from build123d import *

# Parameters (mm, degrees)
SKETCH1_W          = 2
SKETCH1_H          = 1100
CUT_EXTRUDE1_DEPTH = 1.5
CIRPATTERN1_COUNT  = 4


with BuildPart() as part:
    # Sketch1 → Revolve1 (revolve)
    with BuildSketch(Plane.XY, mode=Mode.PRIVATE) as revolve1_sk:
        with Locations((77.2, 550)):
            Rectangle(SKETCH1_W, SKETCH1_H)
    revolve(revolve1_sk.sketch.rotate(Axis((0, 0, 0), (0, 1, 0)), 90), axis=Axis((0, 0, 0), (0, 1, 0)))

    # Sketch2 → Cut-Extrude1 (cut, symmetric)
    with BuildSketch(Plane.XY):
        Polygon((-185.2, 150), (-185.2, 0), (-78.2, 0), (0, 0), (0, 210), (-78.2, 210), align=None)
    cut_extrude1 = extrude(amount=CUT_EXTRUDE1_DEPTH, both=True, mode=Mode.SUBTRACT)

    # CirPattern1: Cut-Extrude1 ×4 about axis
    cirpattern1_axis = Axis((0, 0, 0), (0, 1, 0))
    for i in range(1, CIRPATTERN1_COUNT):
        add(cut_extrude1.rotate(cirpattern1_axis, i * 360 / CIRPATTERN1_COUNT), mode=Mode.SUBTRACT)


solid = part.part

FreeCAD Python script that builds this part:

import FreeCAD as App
import Part
import Sketcher
from FreeCAD import Vector
Q = App.Units.Quantity

doc = App.newDocument("Part")
params = doc.addObject("Spreadsheet::Sheet", "Params")
for row, (alias, value) in enumerate([
    ("sketch1_width", "2 mm"),
    ("sketch1_height", "1100 mm"),
    ("revolution_angle", "360 deg"),
    ("sketch2_height", "150 mm"),
    ("sketch2_height2", "210 mm"),
    ("sketch2_width", "185.2 mm"),
    ("sketch2_width2", "78.2 mm"),
    ("pocket1_length", "3 mm"),
], start=1):
    params.set(f"A{row}", alias)
    params.set(f"B{row}", "=" + value)
    params.setAlias(f"B{row}", alias)

body = doc.addObject("PartDesign::Body", "Body")

sketch1 = doc.addObject("Sketcher::SketchObject", "Sketch")
body.addObject(sketch1)
sketch1.AttachmentSupport = (doc.XY_Plane, [""])
sketch1.MapMode = "FlatFace"
sketch1.addGeometry([
    Part.LineSegment(Vector(76.2, 1100, 0), Vector(76.2, 0, 0)),
    Part.LineSegment(Vector(76.2, 0, 0), Vector(78.2, 0, 0)),
    Part.LineSegment(Vector(78.2, 0, 0), Vector(78.2, 1100, 0)),
    Part.LineSegment(Vector(78.2, 1100, 0), Vector(76.2, 1100, 0)),
], False)
sketch1.addConstraint([
    Sketcher.Constraint("Coincident", 0, 2, 1, 1),
    Sketcher.Constraint("Coincident", 1, 2, 2, 1),
    Sketcher.Constraint("Coincident", 2, 2, 3, 1),
    Sketcher.Constraint("Coincident", 3, 2, 0, 1),
    Sketcher.Constraint("Vertical", 0),
    Sketcher.Constraint("Horizontal", 1),
    Sketcher.Constraint("Vertical", 2),
    Sketcher.Constraint("Horizontal", 3),
    Sketcher.Constraint("PointOnObject", 0, 2, -1),
    Sketcher.Constraint("DistanceX", 1, 1, 1, 2, Q("2 mm")),
    Sketcher.Constraint("DistanceY", 0, 2, 0, 1, Q("1100 mm")),
    Sketcher.Constraint("DistanceX", -1, 1, 0, 2, Q("76.2 mm")),
])
sketch1.setExpression("Constraints[9]", "Params.sketch1_width")
sketch1.setExpression("Constraints[10]", "Params.sketch1_height")
revolution = doc.addObject("PartDesign::Revolution", "Revolution")
body.addObject(revolution)
revolution.Profile = sketch1
revolution.ReferenceAxis = (sketch1, ["V_Axis"])
revolution.setExpression("Angle", "Params.revolution_angle")

sketch2 = doc.addObject("Sketcher::SketchObject", "Sketch001")
body.addObject(sketch2)
sketch2.AttachmentSupport = (doc.XY_Plane, [""])
sketch2.MapMode = "FlatFace"
sketch2.addGeometry([
    Part.LineSegment(Vector(-185.2, 150, 0), Vector(-185.2, 0, 0)),
    Part.LineSegment(Vector(-185.2, 0, 0), Vector(0, 0, 0)),
    Part.LineSegment(Vector(0, 0, 0), Vector(0, 210, 0)),
    Part.LineSegment(Vector(0, 210, 0), Vector(-78.2, 210, 0)),
    Part.LineSegment(Vector(-78.2, 210, 0), Vector(-185.2, 150, 0)),
], False)
sketch2.addConstraint([
    Sketcher.Constraint("Coincident", 0, 2, 1, 1),
    Sketcher.Constraint("Coincident", 1, 2, 2, 1),
    Sketcher.Constraint("Coincident", 2, 2, 3, 1),
    Sketcher.Constraint("Coincident", 3, 2, 4, 1),
    Sketcher.Constraint("Coincident", 4, 2, 0, 1),
    Sketcher.Constraint("Vertical", 0),
    Sketcher.Constraint("Horizontal", 1),
    Sketcher.Constraint("Vertical", 2),
    Sketcher.Constraint("Horizontal", 3),
    Sketcher.Constraint("Coincident", 1, 2, -1, 1),
    Sketcher.Constraint("DistanceY", 0, 2, 0, 1, Q("150 mm")),
    Sketcher.Constraint("DistanceY", 2, 1, 2, 2, Q("210 mm")),
    Sketcher.Constraint("DistanceX", 1, 1, 1, 2, Q("185.2 mm")),
    Sketcher.Constraint("DistanceX", 3, 2, 3, 1, Q("78.2 mm")),
])
sketch2.setExpression("Constraints[10]", "Params.sketch2_height")
sketch2.setExpression("Constraints[11]", "Params.sketch2_height2")
sketch2.setExpression("Constraints[12]", "Params.sketch2_width")
sketch2.setExpression("Constraints[13]", "Params.sketch2_width2")
pocket1 = doc.addObject("PartDesign::Pocket", "Pocket")
body.addObject(pocket1)
pocket1.Profile = sketch2
pocket1.setExpression("Length", "Params.pocket1_length")
pocket1.Midplane = True
doc.recompute()

polarpattern = doc.addObject("PartDesign::PolarPattern", "PolarPattern")
body.addObject(polarpattern)
polarpattern.Originals = [pocket1]
polarpattern.Axis = (doc.Y_Axis, [""])
polarpattern.Angle = 360
polarpattern.Occurrences = 4
body.Tip = polarpattern

doc.recompute()
